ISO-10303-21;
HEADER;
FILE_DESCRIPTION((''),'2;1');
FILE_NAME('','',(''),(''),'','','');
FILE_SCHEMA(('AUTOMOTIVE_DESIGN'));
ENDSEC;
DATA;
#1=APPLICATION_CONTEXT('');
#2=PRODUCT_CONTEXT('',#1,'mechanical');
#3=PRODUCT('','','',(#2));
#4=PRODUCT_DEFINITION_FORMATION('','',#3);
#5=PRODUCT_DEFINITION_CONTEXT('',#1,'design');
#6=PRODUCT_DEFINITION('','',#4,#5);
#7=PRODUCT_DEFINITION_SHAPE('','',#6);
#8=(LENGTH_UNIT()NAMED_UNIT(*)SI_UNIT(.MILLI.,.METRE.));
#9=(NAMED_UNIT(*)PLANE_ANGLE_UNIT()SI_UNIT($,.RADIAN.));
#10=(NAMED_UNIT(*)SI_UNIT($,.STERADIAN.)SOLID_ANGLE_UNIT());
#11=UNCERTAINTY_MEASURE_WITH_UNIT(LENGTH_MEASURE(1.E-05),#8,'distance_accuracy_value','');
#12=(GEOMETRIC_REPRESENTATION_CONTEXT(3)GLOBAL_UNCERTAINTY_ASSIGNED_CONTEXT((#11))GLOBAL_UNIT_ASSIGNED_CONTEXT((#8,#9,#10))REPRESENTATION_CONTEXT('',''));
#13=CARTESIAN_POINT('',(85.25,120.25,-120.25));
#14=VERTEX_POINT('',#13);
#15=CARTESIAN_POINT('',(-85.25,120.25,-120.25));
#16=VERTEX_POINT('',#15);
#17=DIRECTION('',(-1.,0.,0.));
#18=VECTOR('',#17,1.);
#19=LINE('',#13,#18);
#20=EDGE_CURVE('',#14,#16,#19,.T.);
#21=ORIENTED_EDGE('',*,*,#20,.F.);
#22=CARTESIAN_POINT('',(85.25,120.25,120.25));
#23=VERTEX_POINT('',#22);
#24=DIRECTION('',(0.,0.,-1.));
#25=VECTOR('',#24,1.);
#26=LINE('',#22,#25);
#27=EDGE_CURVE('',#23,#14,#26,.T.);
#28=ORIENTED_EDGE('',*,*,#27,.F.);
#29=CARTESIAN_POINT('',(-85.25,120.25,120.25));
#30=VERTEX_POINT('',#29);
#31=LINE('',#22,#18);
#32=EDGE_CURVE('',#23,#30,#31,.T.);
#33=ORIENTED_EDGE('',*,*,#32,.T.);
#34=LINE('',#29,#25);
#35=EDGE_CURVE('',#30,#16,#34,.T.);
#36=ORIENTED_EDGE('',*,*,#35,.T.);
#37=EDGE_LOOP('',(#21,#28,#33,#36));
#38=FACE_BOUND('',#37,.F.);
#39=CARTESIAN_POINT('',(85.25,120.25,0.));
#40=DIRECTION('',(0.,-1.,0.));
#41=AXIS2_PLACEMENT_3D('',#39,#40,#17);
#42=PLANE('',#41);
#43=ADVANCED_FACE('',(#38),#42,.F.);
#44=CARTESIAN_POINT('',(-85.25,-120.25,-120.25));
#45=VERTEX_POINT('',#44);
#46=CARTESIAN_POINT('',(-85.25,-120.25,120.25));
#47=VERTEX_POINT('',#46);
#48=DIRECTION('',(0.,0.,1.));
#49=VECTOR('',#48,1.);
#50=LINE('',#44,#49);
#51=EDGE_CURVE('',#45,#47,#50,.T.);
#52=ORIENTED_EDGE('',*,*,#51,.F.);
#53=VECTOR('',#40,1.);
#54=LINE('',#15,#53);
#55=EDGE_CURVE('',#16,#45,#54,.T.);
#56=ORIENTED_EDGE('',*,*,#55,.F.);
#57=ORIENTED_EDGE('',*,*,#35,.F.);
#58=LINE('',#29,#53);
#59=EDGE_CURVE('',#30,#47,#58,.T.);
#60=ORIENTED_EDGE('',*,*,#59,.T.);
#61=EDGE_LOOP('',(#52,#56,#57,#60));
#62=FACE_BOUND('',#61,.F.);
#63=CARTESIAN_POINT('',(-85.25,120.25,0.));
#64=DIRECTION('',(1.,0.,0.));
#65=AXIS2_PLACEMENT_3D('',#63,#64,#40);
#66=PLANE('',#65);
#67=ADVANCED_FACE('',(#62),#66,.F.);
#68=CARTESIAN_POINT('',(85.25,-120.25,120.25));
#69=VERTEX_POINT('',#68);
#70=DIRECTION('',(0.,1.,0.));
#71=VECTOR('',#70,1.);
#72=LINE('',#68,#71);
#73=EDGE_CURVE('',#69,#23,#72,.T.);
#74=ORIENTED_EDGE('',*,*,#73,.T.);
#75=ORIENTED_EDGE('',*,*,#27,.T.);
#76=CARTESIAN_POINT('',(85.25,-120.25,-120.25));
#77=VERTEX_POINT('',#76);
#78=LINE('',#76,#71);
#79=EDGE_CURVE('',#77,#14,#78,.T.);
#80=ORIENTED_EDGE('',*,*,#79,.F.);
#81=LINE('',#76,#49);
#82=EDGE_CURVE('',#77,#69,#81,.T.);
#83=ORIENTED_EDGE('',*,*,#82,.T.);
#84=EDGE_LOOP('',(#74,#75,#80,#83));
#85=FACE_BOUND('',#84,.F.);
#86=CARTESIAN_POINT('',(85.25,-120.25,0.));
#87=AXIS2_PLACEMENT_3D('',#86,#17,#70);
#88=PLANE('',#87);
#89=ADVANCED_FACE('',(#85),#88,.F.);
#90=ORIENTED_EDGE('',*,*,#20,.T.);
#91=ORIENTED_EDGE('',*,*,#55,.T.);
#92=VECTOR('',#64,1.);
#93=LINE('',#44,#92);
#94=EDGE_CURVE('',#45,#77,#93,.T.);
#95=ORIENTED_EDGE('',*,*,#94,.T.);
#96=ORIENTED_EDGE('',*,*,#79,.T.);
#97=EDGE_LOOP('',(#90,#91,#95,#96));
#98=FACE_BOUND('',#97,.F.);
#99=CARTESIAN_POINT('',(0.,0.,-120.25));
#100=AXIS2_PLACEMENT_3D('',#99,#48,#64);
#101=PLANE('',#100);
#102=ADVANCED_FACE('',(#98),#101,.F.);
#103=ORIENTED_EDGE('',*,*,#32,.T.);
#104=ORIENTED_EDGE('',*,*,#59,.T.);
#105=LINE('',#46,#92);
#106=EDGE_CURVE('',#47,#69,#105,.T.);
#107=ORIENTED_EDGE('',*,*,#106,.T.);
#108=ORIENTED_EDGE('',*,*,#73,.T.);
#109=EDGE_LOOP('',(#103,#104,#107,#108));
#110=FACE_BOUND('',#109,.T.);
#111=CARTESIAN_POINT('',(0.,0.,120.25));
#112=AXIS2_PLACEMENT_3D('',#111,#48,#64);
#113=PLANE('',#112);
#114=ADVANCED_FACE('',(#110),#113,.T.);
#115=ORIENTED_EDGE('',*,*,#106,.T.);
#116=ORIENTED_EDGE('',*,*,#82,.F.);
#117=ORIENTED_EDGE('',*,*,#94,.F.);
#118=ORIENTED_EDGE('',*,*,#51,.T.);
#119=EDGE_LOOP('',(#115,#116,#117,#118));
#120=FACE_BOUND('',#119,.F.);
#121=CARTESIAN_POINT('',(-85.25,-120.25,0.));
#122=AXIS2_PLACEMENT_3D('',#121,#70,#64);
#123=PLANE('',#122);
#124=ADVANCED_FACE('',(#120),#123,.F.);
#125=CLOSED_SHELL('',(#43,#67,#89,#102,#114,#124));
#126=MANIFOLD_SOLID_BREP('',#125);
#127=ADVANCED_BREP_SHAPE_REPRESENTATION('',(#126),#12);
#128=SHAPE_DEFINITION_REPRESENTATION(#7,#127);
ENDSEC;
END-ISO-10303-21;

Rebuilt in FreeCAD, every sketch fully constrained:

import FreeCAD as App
import Part
import Sketcher
from FreeCAD import Vector
Q = App.Units.Quantity


def add_polygon(sketch, points):
    """Adds a closed chain of lines whose ends are joined by coincident constraints."""
    first, n = sketch.GeometryCount, len(points)
    for a, b in zip(points, points[1:] + points[:1]):
        sketch.addGeometry(Part.LineSegment(App.Vector(*a, 0), App.Vector(*b, 0)), False)
    for i in range(n):
        sketch.addConstraint(Sketcher.Constraint("Coincident", first + i, 2, first + (i + 1) % n, 1))

doc = App.newDocument("Part")
params = doc.addObject("Spreadsheet::Sheet", "Params")
for row, (alias, value) in enumerate([
    ("sketch1_width", "170.5 mm"),
    ("sketch1_height", "240.5 mm"),
    ("pad1_length", "240.5 mm"),
], start=1):
    params.set(f"A{row}", alias)
    params.set(f"B{row}", "=" + value)
    params.setAlias(f"B{row}", alias)

body = doc.addObject("PartDesign::Body", "Body")

# Sketch on XY plane
sketch1 = body.newObject("Sketcher::SketchObject", "Sketch")
sketch1.AttachmentSupport = (doc.getObject("XY_Plane"), [""])
sketch1.MapMode = "FlatFace"
add_polygon(sketch1, [(-85.25, 120.25), (-85.25, -120.25), (85.25, -120.25), (85.25, 120.25)])  # lines 0-3
sketch1.addConstraint([
    Sketcher.Constraint("Vertical", 0),
    Sketcher.Constraint("Horizontal", 1),
    Sketcher.Constraint("Vertical", 2),
    Sketcher.Constraint("Horizontal", 3),
    Sketcher.Constraint("Symmetric", 0, 2, 2, 2, -1, 1),
    Sketcher.Constraint("DistanceX", 1, 1, 1, 2, Q("170.5 mm")),
    Sketcher.Constraint("DistanceY", 0, 2, 0, 1, Q("240.5 mm")),
])
sketch1.setExpression("Constraints[9]", "Params.sketch1_width")
sketch1.setExpression("Constraints[10]", "Params.sketch1_height")
pad1 = body.newObject("PartDesign::Pad", "Pad")
pad1.Profile = sketch1
pad1.setExpression("Length", "Params.pad1_length")
pad1.Midplane = True

doc.recompute()
